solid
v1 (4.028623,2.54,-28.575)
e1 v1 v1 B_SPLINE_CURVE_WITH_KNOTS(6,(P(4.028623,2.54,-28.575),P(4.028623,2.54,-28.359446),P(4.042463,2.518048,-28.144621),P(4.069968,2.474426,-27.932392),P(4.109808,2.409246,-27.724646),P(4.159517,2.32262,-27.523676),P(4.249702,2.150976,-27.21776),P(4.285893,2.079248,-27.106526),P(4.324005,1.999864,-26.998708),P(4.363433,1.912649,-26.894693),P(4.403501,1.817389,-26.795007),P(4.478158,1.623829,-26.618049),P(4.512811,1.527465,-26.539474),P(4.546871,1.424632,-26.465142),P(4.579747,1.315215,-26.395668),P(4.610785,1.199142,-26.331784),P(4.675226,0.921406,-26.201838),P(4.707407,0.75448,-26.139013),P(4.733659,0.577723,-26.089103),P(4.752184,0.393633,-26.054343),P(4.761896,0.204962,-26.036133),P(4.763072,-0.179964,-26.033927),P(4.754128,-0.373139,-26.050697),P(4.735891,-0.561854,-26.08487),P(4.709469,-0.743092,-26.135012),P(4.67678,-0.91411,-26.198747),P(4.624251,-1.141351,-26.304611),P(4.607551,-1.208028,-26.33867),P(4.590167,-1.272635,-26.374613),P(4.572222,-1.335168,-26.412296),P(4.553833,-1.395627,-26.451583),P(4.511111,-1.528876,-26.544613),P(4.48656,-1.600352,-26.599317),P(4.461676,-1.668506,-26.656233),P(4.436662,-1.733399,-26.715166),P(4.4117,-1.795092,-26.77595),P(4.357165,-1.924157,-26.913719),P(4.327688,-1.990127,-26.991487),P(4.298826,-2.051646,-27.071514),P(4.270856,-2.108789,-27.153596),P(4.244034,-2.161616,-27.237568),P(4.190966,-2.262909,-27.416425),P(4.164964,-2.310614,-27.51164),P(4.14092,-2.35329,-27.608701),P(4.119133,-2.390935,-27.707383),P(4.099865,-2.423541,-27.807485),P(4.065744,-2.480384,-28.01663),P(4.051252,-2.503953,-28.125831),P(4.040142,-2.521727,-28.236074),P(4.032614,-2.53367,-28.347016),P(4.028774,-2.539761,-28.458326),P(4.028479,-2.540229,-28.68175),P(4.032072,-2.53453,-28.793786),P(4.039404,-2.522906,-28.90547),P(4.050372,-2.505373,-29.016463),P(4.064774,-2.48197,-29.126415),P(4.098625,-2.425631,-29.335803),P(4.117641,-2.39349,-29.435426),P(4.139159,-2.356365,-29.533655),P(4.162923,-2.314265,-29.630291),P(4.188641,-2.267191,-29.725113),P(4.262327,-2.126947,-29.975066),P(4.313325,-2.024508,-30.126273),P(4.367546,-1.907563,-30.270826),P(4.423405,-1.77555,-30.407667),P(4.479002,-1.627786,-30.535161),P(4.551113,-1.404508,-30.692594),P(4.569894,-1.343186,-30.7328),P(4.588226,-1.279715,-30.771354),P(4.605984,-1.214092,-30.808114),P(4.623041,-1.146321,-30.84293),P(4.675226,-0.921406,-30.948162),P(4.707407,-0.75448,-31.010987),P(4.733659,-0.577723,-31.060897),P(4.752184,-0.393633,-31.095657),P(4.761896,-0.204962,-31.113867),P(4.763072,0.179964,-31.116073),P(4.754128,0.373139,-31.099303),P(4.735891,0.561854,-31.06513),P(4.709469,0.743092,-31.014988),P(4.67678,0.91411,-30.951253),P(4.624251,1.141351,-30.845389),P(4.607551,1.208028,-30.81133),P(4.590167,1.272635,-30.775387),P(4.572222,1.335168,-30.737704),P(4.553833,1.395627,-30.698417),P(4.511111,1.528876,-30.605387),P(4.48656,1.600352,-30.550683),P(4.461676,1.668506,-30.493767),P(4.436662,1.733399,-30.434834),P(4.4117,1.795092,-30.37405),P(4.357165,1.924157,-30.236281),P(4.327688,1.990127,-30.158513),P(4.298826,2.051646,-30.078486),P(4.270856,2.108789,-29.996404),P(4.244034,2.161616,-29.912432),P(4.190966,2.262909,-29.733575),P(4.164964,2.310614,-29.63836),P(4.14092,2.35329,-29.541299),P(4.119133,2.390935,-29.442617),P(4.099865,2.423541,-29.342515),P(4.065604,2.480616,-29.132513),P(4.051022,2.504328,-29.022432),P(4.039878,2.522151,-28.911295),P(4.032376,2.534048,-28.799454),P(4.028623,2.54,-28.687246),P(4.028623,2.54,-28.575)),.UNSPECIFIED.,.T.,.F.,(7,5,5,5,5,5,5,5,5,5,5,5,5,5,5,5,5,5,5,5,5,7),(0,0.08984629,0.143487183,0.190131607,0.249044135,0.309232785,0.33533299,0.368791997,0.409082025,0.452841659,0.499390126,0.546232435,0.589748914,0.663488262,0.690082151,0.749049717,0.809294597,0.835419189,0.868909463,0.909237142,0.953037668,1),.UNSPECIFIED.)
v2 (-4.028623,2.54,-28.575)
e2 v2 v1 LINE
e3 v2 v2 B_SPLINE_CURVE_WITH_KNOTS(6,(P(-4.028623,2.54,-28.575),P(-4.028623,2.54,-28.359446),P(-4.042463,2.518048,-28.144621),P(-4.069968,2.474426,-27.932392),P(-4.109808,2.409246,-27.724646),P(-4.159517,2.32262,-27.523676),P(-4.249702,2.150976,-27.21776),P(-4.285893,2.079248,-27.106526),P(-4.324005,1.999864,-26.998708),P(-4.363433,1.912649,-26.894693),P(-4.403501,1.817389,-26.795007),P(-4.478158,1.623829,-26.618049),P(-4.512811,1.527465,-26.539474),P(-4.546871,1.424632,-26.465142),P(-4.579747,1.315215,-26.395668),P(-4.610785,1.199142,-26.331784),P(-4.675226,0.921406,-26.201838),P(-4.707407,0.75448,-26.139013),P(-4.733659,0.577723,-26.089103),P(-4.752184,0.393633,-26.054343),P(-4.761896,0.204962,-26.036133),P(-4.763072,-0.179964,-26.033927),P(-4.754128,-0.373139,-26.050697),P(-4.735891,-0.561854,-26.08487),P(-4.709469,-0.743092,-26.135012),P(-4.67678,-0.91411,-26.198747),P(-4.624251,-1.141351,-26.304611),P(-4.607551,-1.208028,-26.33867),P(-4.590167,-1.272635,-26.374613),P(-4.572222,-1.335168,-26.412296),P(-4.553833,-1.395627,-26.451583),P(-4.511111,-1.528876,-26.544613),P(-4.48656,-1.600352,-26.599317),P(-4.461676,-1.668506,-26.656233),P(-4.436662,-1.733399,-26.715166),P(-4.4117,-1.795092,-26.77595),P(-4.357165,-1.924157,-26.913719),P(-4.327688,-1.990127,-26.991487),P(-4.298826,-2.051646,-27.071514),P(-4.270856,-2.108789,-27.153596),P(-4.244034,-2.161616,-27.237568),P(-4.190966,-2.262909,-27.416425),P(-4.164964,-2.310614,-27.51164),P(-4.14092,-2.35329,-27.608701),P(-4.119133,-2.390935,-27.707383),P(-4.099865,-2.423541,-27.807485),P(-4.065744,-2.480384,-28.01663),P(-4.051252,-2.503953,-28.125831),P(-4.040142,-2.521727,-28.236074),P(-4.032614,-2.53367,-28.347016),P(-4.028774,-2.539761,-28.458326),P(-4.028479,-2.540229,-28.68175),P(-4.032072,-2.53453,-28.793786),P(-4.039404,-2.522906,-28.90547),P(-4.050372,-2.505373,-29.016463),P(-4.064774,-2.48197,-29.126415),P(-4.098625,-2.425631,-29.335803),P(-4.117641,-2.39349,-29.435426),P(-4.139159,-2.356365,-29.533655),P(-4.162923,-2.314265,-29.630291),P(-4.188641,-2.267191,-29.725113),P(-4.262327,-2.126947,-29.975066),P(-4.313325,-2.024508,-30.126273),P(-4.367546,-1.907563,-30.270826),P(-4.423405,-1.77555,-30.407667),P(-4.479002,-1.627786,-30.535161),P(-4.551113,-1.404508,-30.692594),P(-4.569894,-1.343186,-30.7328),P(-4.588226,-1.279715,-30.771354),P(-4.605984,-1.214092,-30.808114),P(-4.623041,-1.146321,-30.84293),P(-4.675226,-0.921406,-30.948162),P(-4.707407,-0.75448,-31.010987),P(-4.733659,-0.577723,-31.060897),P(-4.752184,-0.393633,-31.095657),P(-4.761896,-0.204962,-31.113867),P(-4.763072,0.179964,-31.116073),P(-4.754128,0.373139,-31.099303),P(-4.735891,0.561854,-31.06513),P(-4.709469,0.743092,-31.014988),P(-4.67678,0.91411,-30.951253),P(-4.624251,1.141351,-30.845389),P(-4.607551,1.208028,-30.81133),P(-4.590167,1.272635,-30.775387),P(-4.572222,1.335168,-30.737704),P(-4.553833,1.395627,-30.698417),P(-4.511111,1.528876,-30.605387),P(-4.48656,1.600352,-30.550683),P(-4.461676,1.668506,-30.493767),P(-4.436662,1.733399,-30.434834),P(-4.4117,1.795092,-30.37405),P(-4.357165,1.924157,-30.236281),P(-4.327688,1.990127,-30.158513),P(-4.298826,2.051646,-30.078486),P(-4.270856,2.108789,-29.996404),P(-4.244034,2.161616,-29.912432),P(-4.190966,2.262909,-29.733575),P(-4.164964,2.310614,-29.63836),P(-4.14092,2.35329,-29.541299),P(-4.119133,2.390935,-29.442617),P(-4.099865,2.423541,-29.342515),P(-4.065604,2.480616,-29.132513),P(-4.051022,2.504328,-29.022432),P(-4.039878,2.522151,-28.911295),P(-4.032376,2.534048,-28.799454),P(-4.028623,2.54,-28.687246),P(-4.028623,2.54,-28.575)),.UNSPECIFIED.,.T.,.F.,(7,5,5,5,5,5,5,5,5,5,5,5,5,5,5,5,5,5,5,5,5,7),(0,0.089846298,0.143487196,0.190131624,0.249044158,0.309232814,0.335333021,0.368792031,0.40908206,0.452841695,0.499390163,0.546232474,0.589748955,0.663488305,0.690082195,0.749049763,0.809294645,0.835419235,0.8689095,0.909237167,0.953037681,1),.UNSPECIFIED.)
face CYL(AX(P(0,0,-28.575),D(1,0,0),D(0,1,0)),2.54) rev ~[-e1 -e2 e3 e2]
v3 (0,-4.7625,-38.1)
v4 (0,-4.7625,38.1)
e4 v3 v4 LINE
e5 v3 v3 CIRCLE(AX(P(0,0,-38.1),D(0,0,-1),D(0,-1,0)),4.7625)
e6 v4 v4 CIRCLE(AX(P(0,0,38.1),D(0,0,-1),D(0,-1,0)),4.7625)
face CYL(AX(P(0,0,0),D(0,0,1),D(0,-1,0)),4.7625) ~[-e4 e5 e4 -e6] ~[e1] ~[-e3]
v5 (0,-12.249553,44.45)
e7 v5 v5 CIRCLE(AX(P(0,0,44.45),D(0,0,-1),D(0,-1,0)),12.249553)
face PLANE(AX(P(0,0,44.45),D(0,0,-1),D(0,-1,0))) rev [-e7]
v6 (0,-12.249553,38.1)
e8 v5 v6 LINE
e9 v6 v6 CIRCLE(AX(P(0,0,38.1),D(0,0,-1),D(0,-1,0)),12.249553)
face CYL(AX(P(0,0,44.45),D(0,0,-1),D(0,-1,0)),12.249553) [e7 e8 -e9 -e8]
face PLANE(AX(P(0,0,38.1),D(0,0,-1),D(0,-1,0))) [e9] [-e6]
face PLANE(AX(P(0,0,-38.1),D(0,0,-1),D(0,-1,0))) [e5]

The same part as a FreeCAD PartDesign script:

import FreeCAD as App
import Part
import Sketcher

V = App.Vector
Q = App.Units.Quantity

doc = App.newDocument("Part")
body = doc.addObject("PartDesign::Body", "Body")

sketch1 = doc.addObject("Sketcher::SketchObject", "Sketch")
body.addObject(sketch1)
sketch1.AttachmentSupport = (doc.YZ_Plane, [""])
sketch1.MapMode = "FlatFace"
sketch1.addGeometry(Part.LineSegment(V(-12.249553, 38.1, 0), V(-4.7625, 38.1, 0)), False)
sketch1.addGeometry(Part.LineSegment(V(-4.7625, 38.1, 0), V(-4.7625, -38.1, 0)), False)
sketch1.addGeometry(Part.LineSegment(V(-4.7625, -38.1, 0), V(0, -38.1, 0)), False)
sketch1.addGeometry(Part.LineSegment(V(0, -38.1, 0), V(0, 44.45, 0)), False)
sketch1.addGeometry(Part.LineSegment(V(0, 44.45, 0), V(-12.249553, 44.45, 0)), False)
sketch1.addGeometry(Part.LineSegment(V(-12.249553, 44.45, 0), V(-12.249553, 38.1, 0)), False)
sketch1.addConstraint(Sketcher.Constraint("Coincident", 0, 2, 1, 1))
sketch1.addConstraint(Sketcher.Constraint("Coincident", 1, 2, 2, 1))
sketch1.addConstraint(Sketcher.Constraint("Coincident", 2, 2, 3, 1))
sketch1.addConstraint(Sketcher.Constraint("Coincident", 3, 2, 4, 1))
sketch1.addConstraint(Sketcher.Constraint("Coincident", 4, 2, 5, 1))
sketch1.addConstraint(Sketcher.Constraint("Coincident", 5, 2, 0, 1))
sketch1.addConstraint(Sketcher.Constraint("Horizontal", 0))
sketch1.addConstraint(Sketcher.Constraint("Vertical", 1))
sketch1.addConstraint(Sketcher.Constraint("Horizontal", 2))
sketch1.addConstraint(Sketcher.Constraint("Vertical", 3))
sketch1.addConstraint(Sketcher.Constraint("Horizontal", 4))
sketch1.addConstraint(Sketcher.Constraint("Vertical", 5))
sketch1.addConstraint(Sketcher.Constraint("PointOnObject", 2, 2, -2))
sketch1.addConstraint(Sketcher.Constraint("DistanceY", 1, 2, 1, 1, Q("3 in")))
sketch1.addConstraint(Sketcher.Constraint("DistanceY", 3, 1, 3, 2, Q("3.25 in")))
sketch1.addConstraint(Sketcher.Constraint("DistanceY", -1, 1, 0, 2, Q("1.5 in")))
sketch1.addConstraint(Sketcher.Constraint("DistanceX", 2, 1, 2, 2, Q("0.1875 in")))
sketch1.addConstraint(Sketcher.Constraint("DistanceX", 0, 1, 0, 2, Q("7.487053 mm")))
revolution = doc.addObject("PartDesign::Revolution", "Revolution")
body.addObject(revolution)
revolution.Profile = sketch1
revolution.ReferenceAxis = (sketch1, ["V_Axis"])
revolution.Angle = 360

sketch2 = doc.addObject("Sketcher::SketchObject", "Sketch001")
body.addObject(sketch2)
sketch2.AttachmentSupport = (doc.YZ_Plane, [""])
sketch2.MapMode = "FlatFace"
sketch2.addGeometry(Part.Circle(V(0, -28.575, 0), V(0, 0, 1), 2.54), False)
sketch2.addConstraint(Sketcher.Constraint("PointOnObject", 0, 3, -2))
sketch2.addConstraint(Sketcher.Constraint("Diameter", 0, Q("0.2 in")))
sketch2.addConstraint(Sketcher.Constraint("DistanceY", 0, 3, -1, 1, Q("1.125 in")))
pocket1 = doc.addObject("PartDesign::Pocket", "Pocket")
body.addObject(pocket1)
pocket1.Profile = sketch2
pocket1.Length = Q("1 in")
pocket1.Midplane = True

doc.recompute()
